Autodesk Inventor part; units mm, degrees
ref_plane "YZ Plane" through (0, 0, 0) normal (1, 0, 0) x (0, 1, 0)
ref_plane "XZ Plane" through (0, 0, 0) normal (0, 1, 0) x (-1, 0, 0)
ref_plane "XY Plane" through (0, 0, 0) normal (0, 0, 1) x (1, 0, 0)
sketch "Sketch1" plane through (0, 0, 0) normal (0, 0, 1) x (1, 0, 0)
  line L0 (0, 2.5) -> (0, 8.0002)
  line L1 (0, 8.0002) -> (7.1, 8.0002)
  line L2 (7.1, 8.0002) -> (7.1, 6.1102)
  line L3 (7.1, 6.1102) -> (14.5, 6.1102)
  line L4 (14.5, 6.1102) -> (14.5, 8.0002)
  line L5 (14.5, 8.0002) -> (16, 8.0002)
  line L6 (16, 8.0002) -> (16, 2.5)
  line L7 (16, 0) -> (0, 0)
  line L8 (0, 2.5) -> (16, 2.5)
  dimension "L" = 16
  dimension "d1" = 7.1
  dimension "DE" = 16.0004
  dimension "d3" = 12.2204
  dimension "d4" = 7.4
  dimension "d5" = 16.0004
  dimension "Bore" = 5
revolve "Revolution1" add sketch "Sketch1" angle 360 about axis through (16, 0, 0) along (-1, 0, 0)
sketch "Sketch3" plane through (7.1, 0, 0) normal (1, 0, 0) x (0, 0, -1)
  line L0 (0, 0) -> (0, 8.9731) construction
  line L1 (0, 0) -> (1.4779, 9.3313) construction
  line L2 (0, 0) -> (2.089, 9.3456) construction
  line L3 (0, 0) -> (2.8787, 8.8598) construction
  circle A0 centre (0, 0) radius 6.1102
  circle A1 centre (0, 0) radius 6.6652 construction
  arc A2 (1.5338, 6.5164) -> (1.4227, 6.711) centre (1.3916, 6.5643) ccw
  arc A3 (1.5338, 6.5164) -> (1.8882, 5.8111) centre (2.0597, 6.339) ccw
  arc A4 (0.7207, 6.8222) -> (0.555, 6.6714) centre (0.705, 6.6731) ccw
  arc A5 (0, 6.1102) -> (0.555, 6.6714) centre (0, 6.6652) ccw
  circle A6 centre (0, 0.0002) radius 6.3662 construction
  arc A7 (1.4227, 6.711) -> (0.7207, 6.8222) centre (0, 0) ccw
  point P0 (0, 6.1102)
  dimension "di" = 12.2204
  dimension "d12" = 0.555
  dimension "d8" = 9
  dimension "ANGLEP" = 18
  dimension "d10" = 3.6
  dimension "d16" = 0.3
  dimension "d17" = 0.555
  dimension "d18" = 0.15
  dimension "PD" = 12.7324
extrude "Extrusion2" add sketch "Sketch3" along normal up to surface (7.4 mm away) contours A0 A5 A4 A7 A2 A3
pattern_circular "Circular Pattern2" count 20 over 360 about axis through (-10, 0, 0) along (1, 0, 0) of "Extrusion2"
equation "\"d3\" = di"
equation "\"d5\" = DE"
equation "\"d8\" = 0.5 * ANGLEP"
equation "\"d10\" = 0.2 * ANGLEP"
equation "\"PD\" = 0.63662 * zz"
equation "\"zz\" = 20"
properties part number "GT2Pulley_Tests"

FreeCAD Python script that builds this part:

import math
import FreeCAD as App
import Part
import Sketcher
from FreeCAD import Vector

doc = App.newDocument("Part")
body = doc.addObject("PartDesign::Body", "Body")

# Sketch on XY plane
sketch1 = body.newObject("Sketcher::SketchObject", "Sketch")
sketch1.AttachmentSupport = (doc.getObject("XY_Plane"), [""])
sketch1.MapMode = "FlatFace"
sketch1.addGeometry(Part.LineSegment(Vector(0, 8.0002, 0), Vector(0, 2.5, 0)), False)
sketch1.addGeometry(Part.LineSegment(Vector(0, 2.5, 0), Vector(16, 2.5, 0)), False)
sketch1.addGeometry(Part.LineSegment(Vector(16, 2.5, 0), Vector(16, 8.0002, 0)), False)
sketch1.addGeometry(Part.LineSegment(Vector(16, 8.0002, 0), Vector(14.5, 8.0002, 0)), False)
sketch1.addGeometry(Part.LineSegment(Vector(14.5, 8.0002, 0), Vector(14.5, 6.1102, 0)), False)
sketch1.addGeometry(Part.LineSegment(Vector(14.5, 6.1102, 0), Vector(7.1, 6.1102, 0)), False)
sketch1.addGeometry(Part.LineSegment(Vector(7.1, 6.1102, 0), Vector(7.1, 8.0002, 0)), False)
sketch1.addGeometry(Part.LineSegment(Vector(7.1, 8.0002, 0), Vector(0, 8.0002, 0)), False)
sketch1.addConstraint(Sketcher.Constraint("Coincident", 0, 2, 1, 1))
sketch1.addConstraint(Sketcher.Constraint("Coincident", 1, 2, 2, 1))
sketch1.addConstraint(Sketcher.Constraint("Coincident", 2, 2, 3, 1))
sketch1.addConstraint(Sketcher.Constraint("Coincident", 3, 2, 4, 1))
sketch1.addConstraint(Sketcher.Constraint("Coincident", 4, 2, 5, 1))
sketch1.addConstraint(Sketcher.Constraint("Coincident", 5, 2, 6, 1))
sketch1.addConstraint(Sketcher.Constraint("Coincident", 6, 2, 7, 1))
sketch1.addConstraint(Sketcher.Constraint("Coincident", 7, 2, 0, 1))
sketch1.addConstraint(Sketcher.Constraint("Vertical", 0))
sketch1.addConstraint(Sketcher.Constraint("Horizontal", 1))
sketch1.addConstraint(Sketcher.Constraint("Vertical", 2))
sketch1.addConstraint(Sketcher.Constraint("Horizontal", 3))
sketch1.addConstraint(Sketcher.Constraint("Vertical", 4))
sketch1.addConstraint(Sketcher.Constraint("Horizontal", 5))
sketch1.addConstraint(Sketcher.Constraint("Vertical", 6))
sketch1.addConstraint(Sketcher.Constraint("Horizontal", 7))
sketch1.addConstraint(Sketcher.Constraint("PointOnObject", 0, 2, -2))
sketch1.addConstraint(Sketcher.Constraint("Horizontal", 3, 2, 6, 2))
sketch1.addConstraint(Sketcher.Constraint("DistanceX", 1, 1, 1, 2, 16.0))
sketch1.addConstraint(Sketcher.Constraint("DistanceX", 5, 2, 5, 1, 7.4))
sketch1.addConstraint(Sketcher.Constraint("DistanceX", 7, 2, 7, 1, 7.1))
sketch1.addConstraint(Sketcher.Constraint("DistanceY", 4, 2, 4, 1, 1.89))
sketch1.addConstraint(Sketcher.Constraint("DistanceY", -1, 1, 0, 2, 2.5))
sketch1.addConstraint(Sketcher.Constraint("DistanceY", 0, 2, 0, 1, 5.5002))
revolution = body.newObject("PartDesign::Revolution", "Revolution")
revolution.Profile = sketch1
revolution.ReferenceAxis = (sketch1, ["H_Axis"])
revolution.Angle = 360

# Sketch on YZ plane
sketch2 = body.newObject("Sketcher::SketchObject", "Sketch001")
sketch2.AttachmentSupport = (doc.getObject("YZ_Plane"), [""])
sketch2.MapMode = "FlatFace"
sketch2.AttachmentOffset = App.Placement(Vector(0, 0, 7.1), App.Rotation())
sketch2.addGeometry(Part.ArcOfCircle(Part.Circle(Vector(0, 0, 0), Vector(0, 0, 1), 6.1102), math.radians(-18.000528), math.radians(0)), False)
sketch2.addGeometry(Part.ArcOfCircle(Part.Circle(Vector(6.339, -2.0597, 0), Vector(0, 0, 1), 0.555015), math.radians(71.359387), math.radians(162.002465)), False)
sketch2.addGeometry(Part.ArcOfCircle(Part.Circle(Vector(6.5643, -1.3916, 0), Vector(0, 0, 1), 0.150051), math.radians(-108.616073), math.radians(-11.969337)), False)
sketch2.addGeometry(Part.ArcOfCircle(Part.Circle(Vector(-0.006013, 0.001113, 0), Vector(0, 0, 1), 6.866259), math.radians(-11.967903), math.radians(-6.034346)), False)
sketch2.addGeometry(Part.ArcOfCircle(Part.Circle(Vector(6.6731, -0.705, 0), Vector(0, 0, 1), 0.149924), math.radians(-6.011006), math.radians(90.649324)), False)
sketch2.addGeometry(Part.ArcOfCircle(Part.Circle(Vector(6.6652, 0, 0), Vector(0, 0, 1), 0.555), math.radians(180), math.radians(270.640034)), False)
sketch2.addConstraint(Sketcher.Constraint("Tangent", 0, 1, 1, 2))
sketch2.addConstraint(Sketcher.Constraint("Tangent", 1, 1, 2, 1))
sketch2.addConstraint(Sketcher.Constraint("Tangent", 2, 2, 3, 1))
sketch2.addConstraint(Sketcher.Constraint("Tangent", 3, 2, 4, 1))
sketch2.addConstraint(Sketcher.Constraint("Tangent", 4, 2, 5, 2))
sketch2.addConstraint(Sketcher.Constraint("Tangent", 5, 1, 0, 2))
sketch2.addConstraint(Sketcher.Constraint("Coincident", 0, 3, -1, 1))
sketch2.addConstraint(Sketcher.Constraint("Equal", 2, 4))
sketch2.addConstraint(Sketcher.Constraint("Equal", 1, 5))
sketch2.addConstraint(Sketcher.Constraint("PointOnObject", 5, 3, -1))
sketch2.addConstraint(Sketcher.Constraint("Radius", 2, 0.15))
sketch2.addConstraint(Sketcher.Constraint("Radius", 1, 0.555))
sketch2.addConstraint(Sketcher.Constraint("Radius", 0, 6.1102))
sketch2.addConstraint(Sketcher.Constraint("Radius", 3, 6.8663))
sketch2.addConstraint(Sketcher.Constraint("DistanceX", 0, 1, 2, 2, 0.9))
sketch2.addConstraint(Sketcher.Constraint("DistanceX", -1, 1, 1, 3, 6.339))
sketch2.addConstraint(Sketcher.Constraint("DistanceX", 3, 3, -1, 1, 0.006))
pad1 = body.newObject("PartDesign::Pad", "Pad")
pad1.Profile = sketch2
pad1.Length = 7.4
doc.recompute()

polarpattern = body.newObject("PartDesign::PolarPattern", "PolarPattern")
polarpattern.Originals = [pad1]
polarpattern.Axis = (doc.getObject("X_Axis"), [""])
polarpattern.Angle = 360
polarpattern.Occurrences = 20
body.Tip = polarpattern

doc.recompute()
